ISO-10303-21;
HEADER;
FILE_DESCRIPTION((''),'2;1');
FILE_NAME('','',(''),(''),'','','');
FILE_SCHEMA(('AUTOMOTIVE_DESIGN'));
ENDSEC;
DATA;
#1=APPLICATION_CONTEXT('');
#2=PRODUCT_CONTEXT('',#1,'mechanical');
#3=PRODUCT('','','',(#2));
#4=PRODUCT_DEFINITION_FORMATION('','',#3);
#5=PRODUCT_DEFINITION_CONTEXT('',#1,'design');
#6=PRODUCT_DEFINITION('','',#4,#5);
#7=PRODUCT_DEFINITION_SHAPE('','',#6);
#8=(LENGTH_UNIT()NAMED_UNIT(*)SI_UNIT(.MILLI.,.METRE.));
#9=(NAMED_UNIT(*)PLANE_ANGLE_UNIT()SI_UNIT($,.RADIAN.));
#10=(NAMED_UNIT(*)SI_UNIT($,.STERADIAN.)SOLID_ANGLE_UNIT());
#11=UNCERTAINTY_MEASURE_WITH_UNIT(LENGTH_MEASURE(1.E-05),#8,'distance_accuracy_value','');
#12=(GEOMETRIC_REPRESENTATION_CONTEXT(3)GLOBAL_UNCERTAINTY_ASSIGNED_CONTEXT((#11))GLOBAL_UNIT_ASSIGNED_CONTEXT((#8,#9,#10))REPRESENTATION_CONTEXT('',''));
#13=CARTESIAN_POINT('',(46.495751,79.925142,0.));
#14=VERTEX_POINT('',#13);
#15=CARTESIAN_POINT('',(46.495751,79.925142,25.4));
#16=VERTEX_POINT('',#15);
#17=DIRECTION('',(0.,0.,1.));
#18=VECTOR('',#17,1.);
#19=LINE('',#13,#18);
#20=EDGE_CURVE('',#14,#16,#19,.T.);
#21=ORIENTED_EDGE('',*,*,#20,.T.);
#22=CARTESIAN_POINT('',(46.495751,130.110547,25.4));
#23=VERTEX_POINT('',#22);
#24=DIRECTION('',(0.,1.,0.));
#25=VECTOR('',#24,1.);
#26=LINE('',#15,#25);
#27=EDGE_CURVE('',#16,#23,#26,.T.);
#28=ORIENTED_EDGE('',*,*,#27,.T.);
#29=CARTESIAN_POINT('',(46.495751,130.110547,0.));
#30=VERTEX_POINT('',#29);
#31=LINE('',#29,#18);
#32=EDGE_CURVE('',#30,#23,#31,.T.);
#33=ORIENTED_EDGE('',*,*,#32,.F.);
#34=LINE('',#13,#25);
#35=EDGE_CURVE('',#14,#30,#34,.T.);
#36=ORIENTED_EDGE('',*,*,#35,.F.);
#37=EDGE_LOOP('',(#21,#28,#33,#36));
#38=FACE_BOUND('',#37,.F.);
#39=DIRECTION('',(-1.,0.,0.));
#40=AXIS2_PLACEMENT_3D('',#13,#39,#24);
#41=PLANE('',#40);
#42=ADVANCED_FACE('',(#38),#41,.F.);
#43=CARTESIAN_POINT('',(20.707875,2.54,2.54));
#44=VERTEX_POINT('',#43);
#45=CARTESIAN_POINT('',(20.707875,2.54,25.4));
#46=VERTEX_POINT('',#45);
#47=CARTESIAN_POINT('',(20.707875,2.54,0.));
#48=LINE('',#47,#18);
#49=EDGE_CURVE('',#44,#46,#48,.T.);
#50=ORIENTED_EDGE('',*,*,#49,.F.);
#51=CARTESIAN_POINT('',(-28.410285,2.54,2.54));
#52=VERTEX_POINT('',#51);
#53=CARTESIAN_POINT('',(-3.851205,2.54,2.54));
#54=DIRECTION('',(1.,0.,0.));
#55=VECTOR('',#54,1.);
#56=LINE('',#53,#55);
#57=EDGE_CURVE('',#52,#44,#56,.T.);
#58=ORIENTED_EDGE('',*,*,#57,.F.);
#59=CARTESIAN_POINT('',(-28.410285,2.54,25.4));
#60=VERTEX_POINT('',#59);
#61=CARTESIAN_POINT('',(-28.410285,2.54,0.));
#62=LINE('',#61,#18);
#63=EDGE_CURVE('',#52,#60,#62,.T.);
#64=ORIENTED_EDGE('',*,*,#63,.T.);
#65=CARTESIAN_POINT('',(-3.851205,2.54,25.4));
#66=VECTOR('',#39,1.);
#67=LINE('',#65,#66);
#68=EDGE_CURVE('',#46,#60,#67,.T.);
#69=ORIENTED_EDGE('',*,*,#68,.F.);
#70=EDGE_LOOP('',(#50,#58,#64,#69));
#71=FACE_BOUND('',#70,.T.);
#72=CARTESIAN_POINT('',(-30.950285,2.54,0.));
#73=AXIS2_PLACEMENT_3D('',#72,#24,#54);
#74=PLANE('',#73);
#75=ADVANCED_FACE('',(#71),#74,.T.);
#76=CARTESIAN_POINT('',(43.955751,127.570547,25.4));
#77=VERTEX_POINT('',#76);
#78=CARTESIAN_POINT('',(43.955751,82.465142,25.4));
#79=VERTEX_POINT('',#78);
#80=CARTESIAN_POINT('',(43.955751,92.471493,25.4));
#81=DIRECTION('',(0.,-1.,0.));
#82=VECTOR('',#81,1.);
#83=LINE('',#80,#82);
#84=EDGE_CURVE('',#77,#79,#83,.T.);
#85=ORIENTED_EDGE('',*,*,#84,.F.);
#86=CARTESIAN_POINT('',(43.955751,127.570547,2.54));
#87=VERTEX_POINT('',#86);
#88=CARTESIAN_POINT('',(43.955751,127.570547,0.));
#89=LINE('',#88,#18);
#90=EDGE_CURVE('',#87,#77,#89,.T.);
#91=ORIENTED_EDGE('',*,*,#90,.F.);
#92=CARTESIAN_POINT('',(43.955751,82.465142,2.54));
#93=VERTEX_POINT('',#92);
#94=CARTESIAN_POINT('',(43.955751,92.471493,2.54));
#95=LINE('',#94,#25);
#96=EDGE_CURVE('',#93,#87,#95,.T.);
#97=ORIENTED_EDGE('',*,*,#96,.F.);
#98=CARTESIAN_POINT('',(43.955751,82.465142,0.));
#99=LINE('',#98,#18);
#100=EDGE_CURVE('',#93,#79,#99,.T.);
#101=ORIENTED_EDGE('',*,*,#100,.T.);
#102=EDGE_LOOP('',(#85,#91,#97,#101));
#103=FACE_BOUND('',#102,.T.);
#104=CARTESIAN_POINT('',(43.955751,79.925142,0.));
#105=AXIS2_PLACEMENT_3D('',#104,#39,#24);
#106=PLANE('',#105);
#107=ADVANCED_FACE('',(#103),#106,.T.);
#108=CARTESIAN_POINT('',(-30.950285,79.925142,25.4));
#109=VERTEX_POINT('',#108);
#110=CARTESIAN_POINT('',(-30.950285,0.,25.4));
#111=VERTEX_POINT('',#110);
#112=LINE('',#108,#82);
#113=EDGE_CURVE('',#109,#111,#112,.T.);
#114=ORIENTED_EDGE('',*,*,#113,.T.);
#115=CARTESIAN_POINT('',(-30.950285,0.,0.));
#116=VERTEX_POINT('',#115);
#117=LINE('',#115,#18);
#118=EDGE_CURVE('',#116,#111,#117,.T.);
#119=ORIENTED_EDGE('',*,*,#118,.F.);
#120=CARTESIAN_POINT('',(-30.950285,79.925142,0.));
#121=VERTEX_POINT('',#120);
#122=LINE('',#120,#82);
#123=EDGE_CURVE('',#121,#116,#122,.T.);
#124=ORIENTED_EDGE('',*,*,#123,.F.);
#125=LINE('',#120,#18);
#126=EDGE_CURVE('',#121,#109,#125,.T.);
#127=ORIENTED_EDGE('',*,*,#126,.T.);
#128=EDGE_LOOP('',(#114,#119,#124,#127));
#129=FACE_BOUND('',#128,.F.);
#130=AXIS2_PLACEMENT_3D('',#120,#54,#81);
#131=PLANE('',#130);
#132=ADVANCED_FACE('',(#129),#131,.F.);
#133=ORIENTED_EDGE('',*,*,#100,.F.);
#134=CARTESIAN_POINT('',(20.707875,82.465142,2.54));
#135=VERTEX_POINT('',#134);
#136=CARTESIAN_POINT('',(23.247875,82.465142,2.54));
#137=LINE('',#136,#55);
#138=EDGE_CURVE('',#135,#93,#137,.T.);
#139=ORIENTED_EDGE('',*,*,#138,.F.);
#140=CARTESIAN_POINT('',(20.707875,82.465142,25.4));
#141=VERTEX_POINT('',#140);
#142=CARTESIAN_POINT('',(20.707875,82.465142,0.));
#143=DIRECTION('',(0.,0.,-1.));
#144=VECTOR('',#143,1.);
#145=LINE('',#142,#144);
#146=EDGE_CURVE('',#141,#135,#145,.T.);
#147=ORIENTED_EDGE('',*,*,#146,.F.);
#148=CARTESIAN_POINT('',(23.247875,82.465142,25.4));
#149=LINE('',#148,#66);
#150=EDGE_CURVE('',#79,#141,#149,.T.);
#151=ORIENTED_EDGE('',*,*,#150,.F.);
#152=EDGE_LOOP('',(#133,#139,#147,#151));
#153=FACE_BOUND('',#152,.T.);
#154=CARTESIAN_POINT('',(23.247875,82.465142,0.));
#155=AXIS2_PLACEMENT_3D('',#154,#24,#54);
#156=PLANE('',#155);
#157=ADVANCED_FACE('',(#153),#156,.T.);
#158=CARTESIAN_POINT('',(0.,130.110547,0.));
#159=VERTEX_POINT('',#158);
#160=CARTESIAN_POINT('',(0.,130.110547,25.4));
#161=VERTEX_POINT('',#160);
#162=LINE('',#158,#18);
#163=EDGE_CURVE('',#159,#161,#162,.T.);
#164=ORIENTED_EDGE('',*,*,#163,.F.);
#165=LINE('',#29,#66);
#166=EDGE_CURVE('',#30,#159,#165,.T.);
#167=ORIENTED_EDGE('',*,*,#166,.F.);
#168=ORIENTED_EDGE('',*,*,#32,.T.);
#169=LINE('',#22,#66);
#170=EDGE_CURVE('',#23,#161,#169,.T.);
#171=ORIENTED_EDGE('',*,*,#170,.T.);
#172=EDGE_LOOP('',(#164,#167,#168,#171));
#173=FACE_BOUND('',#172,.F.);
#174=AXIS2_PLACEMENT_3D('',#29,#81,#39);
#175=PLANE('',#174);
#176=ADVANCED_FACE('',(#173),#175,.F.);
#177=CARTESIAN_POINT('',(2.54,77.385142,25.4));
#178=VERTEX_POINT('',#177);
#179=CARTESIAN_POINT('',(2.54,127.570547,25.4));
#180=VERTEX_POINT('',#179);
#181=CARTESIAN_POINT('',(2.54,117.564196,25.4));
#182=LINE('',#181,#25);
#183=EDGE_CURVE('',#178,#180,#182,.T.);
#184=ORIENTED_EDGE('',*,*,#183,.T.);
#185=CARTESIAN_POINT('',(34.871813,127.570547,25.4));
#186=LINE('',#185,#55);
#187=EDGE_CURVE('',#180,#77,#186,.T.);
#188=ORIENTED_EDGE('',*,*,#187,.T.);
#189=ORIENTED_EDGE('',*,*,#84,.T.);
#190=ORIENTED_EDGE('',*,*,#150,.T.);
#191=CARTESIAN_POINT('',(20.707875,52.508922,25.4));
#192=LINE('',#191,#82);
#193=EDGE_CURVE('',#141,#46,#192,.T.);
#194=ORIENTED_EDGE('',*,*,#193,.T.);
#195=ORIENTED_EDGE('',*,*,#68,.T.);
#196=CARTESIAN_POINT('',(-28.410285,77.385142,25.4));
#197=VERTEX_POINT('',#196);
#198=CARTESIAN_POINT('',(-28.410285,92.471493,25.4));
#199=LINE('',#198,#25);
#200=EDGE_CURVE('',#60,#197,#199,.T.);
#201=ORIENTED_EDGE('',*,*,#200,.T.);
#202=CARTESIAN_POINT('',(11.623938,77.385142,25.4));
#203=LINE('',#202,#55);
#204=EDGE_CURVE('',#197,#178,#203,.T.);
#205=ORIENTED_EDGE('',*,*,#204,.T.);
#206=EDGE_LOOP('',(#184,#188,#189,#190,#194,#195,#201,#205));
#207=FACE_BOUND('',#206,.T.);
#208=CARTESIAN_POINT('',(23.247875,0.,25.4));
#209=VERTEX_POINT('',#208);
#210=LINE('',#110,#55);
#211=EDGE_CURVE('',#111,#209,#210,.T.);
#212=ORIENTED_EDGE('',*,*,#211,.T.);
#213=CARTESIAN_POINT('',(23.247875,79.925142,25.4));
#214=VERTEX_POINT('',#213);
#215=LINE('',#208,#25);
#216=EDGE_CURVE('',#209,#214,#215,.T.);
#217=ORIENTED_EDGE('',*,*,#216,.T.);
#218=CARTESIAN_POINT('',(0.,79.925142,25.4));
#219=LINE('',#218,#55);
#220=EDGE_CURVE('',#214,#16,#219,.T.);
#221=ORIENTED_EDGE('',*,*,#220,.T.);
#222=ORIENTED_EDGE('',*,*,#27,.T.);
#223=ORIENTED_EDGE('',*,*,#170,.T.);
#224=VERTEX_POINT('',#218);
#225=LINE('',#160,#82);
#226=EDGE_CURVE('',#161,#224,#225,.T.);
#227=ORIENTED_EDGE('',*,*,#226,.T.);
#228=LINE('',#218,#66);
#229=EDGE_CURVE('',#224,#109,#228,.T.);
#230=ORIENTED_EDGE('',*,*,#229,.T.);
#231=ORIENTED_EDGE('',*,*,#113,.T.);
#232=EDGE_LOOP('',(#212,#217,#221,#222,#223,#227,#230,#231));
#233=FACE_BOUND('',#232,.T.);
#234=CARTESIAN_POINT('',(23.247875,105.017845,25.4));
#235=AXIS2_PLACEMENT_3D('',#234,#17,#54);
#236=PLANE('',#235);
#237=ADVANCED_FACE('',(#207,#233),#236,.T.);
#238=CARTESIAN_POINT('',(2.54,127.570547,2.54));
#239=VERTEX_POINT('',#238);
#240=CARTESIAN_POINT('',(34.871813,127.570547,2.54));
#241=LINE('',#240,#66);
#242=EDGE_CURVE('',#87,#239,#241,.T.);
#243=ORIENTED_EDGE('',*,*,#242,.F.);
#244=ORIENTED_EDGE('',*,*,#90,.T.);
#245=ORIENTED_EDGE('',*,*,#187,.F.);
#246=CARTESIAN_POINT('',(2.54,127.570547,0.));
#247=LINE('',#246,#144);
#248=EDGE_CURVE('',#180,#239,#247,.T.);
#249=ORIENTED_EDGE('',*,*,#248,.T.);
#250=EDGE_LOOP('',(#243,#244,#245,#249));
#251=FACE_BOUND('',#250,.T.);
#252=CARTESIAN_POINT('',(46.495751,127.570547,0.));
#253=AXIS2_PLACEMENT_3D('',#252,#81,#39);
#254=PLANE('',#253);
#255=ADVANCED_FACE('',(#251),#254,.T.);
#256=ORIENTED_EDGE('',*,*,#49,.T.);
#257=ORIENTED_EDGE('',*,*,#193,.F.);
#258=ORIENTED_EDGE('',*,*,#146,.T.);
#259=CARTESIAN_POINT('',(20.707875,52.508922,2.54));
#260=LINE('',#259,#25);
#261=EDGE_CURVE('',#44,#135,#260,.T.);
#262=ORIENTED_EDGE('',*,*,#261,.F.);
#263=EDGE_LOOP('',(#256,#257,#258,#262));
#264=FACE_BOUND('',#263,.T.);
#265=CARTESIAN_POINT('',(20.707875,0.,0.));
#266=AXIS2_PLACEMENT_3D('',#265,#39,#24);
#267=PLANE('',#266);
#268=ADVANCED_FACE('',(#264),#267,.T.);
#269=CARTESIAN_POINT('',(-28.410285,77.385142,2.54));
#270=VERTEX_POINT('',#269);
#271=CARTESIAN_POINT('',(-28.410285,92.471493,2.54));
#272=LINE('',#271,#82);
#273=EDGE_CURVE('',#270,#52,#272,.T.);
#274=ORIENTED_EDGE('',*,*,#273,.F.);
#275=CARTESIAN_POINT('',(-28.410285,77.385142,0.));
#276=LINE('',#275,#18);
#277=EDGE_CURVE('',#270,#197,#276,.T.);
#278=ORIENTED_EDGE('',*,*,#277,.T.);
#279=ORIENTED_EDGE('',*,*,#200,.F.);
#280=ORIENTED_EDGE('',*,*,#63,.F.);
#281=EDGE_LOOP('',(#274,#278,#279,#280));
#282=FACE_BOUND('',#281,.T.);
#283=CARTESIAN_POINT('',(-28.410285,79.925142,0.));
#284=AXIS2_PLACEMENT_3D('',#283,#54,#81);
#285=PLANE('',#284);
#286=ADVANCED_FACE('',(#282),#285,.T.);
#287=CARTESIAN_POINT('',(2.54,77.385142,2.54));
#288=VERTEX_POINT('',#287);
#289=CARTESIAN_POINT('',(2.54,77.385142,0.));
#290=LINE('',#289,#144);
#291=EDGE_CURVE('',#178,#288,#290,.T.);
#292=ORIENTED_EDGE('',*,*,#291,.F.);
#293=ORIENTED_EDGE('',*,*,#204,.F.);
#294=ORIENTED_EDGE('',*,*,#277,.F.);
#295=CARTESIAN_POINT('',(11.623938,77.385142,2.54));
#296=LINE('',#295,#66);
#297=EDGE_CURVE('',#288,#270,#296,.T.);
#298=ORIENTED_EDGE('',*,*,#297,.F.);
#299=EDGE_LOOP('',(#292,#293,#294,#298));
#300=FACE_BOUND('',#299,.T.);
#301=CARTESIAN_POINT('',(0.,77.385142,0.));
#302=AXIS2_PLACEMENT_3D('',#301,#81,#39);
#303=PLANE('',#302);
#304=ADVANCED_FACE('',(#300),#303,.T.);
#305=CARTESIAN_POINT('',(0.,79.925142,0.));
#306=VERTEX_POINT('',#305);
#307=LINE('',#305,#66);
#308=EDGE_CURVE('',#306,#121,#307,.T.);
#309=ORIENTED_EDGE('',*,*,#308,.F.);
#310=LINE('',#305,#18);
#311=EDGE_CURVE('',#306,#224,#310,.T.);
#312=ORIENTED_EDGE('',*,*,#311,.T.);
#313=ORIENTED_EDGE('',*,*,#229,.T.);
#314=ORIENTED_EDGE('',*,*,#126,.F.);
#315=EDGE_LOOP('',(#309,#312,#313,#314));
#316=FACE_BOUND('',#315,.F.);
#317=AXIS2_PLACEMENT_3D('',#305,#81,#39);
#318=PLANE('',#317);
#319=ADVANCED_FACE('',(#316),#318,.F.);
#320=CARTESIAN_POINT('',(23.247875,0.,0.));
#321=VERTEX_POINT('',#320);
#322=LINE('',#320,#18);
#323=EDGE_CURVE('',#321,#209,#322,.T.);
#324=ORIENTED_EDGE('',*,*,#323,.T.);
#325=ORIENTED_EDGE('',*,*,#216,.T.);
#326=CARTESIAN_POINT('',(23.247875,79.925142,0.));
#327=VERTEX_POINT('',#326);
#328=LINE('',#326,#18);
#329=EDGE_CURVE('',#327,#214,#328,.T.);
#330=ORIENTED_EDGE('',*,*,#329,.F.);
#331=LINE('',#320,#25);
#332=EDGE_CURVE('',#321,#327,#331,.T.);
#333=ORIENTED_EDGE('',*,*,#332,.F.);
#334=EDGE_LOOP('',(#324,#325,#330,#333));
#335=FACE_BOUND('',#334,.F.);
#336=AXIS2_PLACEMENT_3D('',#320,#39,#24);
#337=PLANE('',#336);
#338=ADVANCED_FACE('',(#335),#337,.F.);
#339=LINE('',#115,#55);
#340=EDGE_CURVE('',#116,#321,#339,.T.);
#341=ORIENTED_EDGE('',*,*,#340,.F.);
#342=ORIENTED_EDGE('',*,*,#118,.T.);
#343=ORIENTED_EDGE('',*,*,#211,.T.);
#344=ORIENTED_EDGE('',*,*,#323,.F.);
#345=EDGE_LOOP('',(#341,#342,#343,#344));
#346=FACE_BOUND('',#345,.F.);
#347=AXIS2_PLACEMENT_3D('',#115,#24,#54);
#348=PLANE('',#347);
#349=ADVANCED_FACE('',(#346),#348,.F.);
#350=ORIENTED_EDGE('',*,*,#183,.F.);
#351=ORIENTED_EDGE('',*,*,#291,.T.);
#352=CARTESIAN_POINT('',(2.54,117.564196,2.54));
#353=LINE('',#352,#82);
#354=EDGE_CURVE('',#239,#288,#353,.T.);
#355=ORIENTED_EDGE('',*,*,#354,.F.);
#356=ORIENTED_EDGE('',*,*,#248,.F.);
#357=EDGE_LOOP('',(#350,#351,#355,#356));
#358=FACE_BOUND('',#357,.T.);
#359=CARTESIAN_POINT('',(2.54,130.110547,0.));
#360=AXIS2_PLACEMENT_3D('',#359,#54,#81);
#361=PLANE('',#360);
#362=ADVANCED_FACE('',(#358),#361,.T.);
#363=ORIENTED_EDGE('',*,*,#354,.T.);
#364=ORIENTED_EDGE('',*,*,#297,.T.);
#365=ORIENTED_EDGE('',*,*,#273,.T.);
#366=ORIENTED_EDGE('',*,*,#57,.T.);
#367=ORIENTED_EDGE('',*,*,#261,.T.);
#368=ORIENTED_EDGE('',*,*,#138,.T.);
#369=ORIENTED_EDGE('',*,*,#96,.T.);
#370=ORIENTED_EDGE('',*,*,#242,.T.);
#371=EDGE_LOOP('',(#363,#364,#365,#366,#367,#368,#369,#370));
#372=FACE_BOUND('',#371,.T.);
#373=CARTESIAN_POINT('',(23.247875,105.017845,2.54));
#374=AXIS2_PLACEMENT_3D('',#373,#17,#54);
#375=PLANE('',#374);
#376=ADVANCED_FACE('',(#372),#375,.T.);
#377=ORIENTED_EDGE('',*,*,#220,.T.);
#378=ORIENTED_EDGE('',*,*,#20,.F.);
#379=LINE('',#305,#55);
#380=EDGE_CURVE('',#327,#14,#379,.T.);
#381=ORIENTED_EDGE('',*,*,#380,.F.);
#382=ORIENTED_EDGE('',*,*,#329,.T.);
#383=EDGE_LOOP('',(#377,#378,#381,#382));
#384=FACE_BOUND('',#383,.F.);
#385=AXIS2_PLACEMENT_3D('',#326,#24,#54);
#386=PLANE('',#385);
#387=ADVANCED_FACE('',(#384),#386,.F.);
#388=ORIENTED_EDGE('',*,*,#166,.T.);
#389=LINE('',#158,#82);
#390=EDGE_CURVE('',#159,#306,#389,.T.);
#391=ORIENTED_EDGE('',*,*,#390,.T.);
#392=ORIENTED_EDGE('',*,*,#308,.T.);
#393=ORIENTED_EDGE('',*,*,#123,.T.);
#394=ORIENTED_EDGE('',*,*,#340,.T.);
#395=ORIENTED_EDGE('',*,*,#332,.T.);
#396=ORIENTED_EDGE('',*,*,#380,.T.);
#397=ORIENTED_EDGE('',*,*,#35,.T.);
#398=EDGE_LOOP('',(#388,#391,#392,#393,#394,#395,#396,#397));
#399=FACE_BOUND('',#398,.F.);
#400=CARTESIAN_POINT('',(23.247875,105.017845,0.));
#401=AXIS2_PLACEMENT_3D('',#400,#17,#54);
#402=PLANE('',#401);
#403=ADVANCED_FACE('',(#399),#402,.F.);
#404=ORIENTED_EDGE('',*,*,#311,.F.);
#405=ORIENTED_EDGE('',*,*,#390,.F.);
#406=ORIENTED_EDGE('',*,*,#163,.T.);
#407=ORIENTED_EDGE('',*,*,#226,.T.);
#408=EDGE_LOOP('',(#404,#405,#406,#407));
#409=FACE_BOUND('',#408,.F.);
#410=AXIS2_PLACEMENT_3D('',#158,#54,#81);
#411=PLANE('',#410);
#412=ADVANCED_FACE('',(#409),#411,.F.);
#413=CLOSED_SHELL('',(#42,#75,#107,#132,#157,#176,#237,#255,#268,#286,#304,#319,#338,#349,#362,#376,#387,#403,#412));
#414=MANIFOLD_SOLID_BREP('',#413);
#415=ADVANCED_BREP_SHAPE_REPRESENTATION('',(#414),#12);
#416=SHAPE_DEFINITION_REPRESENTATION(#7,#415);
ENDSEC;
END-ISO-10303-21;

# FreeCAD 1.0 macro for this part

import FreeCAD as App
import Part
import Sketcher

V = App.Vector
Q = App.Units.Quantity


def faces_at(feature, points):
    """Names of the faces that lie closest to the given points."""
    faces = feature.Shape.Faces
    near = lambda p: min(range(len(faces)), key=lambda i: faces[i].distToShape(Part.Vertex(*p))[0])
    return sorted({f"Face{near(p) + 1}" for p in points})


def add_polygon(sketch, points):
    """Adds a closed chain of lines whose ends are joined by coincident constraints."""
    first, n = sketch.GeometryCount, len(points)
    for a, b in zip(points, points[1:] + points[:1]):
        sketch.addGeometry(Part.LineSegment(App.Vector(*a, 0), App.Vector(*b, 0)), False)
    for i in range(n):
        sketch.addConstraint(Sketcher.Constraint("Coincident", first + i, 2, first + (i + 1) % n, 1))

doc = App.newDocument("Part")
body = doc.addObject("PartDesign::Body", "Body")

# Sketch on XY plane
sketch1 = body.newObject("Sketcher::SketchObject", "Sketch")
sketch1.AttachmentSupport = (doc.getObject("XY_Plane"), [""])
sketch1.MapMode = "FlatFace"
add_polygon(sketch1, [(0, 130), (0, 80), (-31, 80), (-31, 0), (23, 0), (23, 80), (46, 80), (46, 130)])  # lines 0-7
sketch1.addConstraint(Sketcher.Constraint("Vertical", 0))
sketch1.addConstraint(Sketcher.Constraint("Horizontal", 1))
sketch1.addConstraint(Sketcher.Constraint("Vertical", 2))
sketch1.addConstraint(Sketcher.Constraint("Horizontal", 3))
sketch1.addConstraint(Sketcher.Constraint("Vertical", 4))
sketch1.addConstraint(Sketcher.Constraint("Horizontal", 5))
sketch1.addConstraint(Sketcher.Constraint("Vertical", 6))
sketch1.addConstraint(Sketcher.Constraint("Horizontal", 7))
sketch1.addConstraint(Sketcher.Constraint("PointOnObject", 0, 2, -2))
sketch1.addConstraint(Sketcher.Constraint("PointOnObject", 2, 2, -1))
sketch1.addConstraint(Sketcher.Constraint("Horizontal", 1, 2, 4, 2))
sketch1.addConstraint(Sketcher.Constraint("DistanceX", 3, 1, 3, 2, Q("54.198161 mm")))
sketch1.addConstraint(Sketcher.Constraint("DistanceX", 7, 2, 7, 1, Q("46.495751 mm")))
sketch1.addConstraint(Sketcher.Constraint("DistanceX", 1, 2, 1, 1, Q("30.950285 mm")))
sketch1.addConstraint(Sketcher.Constraint("DistanceY", 0, 2, 0, 1, Q("50.185405 mm")))
sketch1.addConstraint(Sketcher.Constraint("DistanceY", 2, 2, 2, 1, Q("79.925142 mm")))
pad1 = body.newObject("PartDesign::Pad", "Pad")
pad1.Profile = sketch1
pad1.Length = Q("1 in")
doc.recompute()

thickness = body.newObject("PartDesign::Thickness", "Thickness")
thickness.Base = (pad1, faces_at(pad1, [(7.773, 65.055, 25.4)]))
thickness.Value = Q("0.1 in")
thickness.Reversed = True
thickness.Join = "Intersection"

doc.recompute()
